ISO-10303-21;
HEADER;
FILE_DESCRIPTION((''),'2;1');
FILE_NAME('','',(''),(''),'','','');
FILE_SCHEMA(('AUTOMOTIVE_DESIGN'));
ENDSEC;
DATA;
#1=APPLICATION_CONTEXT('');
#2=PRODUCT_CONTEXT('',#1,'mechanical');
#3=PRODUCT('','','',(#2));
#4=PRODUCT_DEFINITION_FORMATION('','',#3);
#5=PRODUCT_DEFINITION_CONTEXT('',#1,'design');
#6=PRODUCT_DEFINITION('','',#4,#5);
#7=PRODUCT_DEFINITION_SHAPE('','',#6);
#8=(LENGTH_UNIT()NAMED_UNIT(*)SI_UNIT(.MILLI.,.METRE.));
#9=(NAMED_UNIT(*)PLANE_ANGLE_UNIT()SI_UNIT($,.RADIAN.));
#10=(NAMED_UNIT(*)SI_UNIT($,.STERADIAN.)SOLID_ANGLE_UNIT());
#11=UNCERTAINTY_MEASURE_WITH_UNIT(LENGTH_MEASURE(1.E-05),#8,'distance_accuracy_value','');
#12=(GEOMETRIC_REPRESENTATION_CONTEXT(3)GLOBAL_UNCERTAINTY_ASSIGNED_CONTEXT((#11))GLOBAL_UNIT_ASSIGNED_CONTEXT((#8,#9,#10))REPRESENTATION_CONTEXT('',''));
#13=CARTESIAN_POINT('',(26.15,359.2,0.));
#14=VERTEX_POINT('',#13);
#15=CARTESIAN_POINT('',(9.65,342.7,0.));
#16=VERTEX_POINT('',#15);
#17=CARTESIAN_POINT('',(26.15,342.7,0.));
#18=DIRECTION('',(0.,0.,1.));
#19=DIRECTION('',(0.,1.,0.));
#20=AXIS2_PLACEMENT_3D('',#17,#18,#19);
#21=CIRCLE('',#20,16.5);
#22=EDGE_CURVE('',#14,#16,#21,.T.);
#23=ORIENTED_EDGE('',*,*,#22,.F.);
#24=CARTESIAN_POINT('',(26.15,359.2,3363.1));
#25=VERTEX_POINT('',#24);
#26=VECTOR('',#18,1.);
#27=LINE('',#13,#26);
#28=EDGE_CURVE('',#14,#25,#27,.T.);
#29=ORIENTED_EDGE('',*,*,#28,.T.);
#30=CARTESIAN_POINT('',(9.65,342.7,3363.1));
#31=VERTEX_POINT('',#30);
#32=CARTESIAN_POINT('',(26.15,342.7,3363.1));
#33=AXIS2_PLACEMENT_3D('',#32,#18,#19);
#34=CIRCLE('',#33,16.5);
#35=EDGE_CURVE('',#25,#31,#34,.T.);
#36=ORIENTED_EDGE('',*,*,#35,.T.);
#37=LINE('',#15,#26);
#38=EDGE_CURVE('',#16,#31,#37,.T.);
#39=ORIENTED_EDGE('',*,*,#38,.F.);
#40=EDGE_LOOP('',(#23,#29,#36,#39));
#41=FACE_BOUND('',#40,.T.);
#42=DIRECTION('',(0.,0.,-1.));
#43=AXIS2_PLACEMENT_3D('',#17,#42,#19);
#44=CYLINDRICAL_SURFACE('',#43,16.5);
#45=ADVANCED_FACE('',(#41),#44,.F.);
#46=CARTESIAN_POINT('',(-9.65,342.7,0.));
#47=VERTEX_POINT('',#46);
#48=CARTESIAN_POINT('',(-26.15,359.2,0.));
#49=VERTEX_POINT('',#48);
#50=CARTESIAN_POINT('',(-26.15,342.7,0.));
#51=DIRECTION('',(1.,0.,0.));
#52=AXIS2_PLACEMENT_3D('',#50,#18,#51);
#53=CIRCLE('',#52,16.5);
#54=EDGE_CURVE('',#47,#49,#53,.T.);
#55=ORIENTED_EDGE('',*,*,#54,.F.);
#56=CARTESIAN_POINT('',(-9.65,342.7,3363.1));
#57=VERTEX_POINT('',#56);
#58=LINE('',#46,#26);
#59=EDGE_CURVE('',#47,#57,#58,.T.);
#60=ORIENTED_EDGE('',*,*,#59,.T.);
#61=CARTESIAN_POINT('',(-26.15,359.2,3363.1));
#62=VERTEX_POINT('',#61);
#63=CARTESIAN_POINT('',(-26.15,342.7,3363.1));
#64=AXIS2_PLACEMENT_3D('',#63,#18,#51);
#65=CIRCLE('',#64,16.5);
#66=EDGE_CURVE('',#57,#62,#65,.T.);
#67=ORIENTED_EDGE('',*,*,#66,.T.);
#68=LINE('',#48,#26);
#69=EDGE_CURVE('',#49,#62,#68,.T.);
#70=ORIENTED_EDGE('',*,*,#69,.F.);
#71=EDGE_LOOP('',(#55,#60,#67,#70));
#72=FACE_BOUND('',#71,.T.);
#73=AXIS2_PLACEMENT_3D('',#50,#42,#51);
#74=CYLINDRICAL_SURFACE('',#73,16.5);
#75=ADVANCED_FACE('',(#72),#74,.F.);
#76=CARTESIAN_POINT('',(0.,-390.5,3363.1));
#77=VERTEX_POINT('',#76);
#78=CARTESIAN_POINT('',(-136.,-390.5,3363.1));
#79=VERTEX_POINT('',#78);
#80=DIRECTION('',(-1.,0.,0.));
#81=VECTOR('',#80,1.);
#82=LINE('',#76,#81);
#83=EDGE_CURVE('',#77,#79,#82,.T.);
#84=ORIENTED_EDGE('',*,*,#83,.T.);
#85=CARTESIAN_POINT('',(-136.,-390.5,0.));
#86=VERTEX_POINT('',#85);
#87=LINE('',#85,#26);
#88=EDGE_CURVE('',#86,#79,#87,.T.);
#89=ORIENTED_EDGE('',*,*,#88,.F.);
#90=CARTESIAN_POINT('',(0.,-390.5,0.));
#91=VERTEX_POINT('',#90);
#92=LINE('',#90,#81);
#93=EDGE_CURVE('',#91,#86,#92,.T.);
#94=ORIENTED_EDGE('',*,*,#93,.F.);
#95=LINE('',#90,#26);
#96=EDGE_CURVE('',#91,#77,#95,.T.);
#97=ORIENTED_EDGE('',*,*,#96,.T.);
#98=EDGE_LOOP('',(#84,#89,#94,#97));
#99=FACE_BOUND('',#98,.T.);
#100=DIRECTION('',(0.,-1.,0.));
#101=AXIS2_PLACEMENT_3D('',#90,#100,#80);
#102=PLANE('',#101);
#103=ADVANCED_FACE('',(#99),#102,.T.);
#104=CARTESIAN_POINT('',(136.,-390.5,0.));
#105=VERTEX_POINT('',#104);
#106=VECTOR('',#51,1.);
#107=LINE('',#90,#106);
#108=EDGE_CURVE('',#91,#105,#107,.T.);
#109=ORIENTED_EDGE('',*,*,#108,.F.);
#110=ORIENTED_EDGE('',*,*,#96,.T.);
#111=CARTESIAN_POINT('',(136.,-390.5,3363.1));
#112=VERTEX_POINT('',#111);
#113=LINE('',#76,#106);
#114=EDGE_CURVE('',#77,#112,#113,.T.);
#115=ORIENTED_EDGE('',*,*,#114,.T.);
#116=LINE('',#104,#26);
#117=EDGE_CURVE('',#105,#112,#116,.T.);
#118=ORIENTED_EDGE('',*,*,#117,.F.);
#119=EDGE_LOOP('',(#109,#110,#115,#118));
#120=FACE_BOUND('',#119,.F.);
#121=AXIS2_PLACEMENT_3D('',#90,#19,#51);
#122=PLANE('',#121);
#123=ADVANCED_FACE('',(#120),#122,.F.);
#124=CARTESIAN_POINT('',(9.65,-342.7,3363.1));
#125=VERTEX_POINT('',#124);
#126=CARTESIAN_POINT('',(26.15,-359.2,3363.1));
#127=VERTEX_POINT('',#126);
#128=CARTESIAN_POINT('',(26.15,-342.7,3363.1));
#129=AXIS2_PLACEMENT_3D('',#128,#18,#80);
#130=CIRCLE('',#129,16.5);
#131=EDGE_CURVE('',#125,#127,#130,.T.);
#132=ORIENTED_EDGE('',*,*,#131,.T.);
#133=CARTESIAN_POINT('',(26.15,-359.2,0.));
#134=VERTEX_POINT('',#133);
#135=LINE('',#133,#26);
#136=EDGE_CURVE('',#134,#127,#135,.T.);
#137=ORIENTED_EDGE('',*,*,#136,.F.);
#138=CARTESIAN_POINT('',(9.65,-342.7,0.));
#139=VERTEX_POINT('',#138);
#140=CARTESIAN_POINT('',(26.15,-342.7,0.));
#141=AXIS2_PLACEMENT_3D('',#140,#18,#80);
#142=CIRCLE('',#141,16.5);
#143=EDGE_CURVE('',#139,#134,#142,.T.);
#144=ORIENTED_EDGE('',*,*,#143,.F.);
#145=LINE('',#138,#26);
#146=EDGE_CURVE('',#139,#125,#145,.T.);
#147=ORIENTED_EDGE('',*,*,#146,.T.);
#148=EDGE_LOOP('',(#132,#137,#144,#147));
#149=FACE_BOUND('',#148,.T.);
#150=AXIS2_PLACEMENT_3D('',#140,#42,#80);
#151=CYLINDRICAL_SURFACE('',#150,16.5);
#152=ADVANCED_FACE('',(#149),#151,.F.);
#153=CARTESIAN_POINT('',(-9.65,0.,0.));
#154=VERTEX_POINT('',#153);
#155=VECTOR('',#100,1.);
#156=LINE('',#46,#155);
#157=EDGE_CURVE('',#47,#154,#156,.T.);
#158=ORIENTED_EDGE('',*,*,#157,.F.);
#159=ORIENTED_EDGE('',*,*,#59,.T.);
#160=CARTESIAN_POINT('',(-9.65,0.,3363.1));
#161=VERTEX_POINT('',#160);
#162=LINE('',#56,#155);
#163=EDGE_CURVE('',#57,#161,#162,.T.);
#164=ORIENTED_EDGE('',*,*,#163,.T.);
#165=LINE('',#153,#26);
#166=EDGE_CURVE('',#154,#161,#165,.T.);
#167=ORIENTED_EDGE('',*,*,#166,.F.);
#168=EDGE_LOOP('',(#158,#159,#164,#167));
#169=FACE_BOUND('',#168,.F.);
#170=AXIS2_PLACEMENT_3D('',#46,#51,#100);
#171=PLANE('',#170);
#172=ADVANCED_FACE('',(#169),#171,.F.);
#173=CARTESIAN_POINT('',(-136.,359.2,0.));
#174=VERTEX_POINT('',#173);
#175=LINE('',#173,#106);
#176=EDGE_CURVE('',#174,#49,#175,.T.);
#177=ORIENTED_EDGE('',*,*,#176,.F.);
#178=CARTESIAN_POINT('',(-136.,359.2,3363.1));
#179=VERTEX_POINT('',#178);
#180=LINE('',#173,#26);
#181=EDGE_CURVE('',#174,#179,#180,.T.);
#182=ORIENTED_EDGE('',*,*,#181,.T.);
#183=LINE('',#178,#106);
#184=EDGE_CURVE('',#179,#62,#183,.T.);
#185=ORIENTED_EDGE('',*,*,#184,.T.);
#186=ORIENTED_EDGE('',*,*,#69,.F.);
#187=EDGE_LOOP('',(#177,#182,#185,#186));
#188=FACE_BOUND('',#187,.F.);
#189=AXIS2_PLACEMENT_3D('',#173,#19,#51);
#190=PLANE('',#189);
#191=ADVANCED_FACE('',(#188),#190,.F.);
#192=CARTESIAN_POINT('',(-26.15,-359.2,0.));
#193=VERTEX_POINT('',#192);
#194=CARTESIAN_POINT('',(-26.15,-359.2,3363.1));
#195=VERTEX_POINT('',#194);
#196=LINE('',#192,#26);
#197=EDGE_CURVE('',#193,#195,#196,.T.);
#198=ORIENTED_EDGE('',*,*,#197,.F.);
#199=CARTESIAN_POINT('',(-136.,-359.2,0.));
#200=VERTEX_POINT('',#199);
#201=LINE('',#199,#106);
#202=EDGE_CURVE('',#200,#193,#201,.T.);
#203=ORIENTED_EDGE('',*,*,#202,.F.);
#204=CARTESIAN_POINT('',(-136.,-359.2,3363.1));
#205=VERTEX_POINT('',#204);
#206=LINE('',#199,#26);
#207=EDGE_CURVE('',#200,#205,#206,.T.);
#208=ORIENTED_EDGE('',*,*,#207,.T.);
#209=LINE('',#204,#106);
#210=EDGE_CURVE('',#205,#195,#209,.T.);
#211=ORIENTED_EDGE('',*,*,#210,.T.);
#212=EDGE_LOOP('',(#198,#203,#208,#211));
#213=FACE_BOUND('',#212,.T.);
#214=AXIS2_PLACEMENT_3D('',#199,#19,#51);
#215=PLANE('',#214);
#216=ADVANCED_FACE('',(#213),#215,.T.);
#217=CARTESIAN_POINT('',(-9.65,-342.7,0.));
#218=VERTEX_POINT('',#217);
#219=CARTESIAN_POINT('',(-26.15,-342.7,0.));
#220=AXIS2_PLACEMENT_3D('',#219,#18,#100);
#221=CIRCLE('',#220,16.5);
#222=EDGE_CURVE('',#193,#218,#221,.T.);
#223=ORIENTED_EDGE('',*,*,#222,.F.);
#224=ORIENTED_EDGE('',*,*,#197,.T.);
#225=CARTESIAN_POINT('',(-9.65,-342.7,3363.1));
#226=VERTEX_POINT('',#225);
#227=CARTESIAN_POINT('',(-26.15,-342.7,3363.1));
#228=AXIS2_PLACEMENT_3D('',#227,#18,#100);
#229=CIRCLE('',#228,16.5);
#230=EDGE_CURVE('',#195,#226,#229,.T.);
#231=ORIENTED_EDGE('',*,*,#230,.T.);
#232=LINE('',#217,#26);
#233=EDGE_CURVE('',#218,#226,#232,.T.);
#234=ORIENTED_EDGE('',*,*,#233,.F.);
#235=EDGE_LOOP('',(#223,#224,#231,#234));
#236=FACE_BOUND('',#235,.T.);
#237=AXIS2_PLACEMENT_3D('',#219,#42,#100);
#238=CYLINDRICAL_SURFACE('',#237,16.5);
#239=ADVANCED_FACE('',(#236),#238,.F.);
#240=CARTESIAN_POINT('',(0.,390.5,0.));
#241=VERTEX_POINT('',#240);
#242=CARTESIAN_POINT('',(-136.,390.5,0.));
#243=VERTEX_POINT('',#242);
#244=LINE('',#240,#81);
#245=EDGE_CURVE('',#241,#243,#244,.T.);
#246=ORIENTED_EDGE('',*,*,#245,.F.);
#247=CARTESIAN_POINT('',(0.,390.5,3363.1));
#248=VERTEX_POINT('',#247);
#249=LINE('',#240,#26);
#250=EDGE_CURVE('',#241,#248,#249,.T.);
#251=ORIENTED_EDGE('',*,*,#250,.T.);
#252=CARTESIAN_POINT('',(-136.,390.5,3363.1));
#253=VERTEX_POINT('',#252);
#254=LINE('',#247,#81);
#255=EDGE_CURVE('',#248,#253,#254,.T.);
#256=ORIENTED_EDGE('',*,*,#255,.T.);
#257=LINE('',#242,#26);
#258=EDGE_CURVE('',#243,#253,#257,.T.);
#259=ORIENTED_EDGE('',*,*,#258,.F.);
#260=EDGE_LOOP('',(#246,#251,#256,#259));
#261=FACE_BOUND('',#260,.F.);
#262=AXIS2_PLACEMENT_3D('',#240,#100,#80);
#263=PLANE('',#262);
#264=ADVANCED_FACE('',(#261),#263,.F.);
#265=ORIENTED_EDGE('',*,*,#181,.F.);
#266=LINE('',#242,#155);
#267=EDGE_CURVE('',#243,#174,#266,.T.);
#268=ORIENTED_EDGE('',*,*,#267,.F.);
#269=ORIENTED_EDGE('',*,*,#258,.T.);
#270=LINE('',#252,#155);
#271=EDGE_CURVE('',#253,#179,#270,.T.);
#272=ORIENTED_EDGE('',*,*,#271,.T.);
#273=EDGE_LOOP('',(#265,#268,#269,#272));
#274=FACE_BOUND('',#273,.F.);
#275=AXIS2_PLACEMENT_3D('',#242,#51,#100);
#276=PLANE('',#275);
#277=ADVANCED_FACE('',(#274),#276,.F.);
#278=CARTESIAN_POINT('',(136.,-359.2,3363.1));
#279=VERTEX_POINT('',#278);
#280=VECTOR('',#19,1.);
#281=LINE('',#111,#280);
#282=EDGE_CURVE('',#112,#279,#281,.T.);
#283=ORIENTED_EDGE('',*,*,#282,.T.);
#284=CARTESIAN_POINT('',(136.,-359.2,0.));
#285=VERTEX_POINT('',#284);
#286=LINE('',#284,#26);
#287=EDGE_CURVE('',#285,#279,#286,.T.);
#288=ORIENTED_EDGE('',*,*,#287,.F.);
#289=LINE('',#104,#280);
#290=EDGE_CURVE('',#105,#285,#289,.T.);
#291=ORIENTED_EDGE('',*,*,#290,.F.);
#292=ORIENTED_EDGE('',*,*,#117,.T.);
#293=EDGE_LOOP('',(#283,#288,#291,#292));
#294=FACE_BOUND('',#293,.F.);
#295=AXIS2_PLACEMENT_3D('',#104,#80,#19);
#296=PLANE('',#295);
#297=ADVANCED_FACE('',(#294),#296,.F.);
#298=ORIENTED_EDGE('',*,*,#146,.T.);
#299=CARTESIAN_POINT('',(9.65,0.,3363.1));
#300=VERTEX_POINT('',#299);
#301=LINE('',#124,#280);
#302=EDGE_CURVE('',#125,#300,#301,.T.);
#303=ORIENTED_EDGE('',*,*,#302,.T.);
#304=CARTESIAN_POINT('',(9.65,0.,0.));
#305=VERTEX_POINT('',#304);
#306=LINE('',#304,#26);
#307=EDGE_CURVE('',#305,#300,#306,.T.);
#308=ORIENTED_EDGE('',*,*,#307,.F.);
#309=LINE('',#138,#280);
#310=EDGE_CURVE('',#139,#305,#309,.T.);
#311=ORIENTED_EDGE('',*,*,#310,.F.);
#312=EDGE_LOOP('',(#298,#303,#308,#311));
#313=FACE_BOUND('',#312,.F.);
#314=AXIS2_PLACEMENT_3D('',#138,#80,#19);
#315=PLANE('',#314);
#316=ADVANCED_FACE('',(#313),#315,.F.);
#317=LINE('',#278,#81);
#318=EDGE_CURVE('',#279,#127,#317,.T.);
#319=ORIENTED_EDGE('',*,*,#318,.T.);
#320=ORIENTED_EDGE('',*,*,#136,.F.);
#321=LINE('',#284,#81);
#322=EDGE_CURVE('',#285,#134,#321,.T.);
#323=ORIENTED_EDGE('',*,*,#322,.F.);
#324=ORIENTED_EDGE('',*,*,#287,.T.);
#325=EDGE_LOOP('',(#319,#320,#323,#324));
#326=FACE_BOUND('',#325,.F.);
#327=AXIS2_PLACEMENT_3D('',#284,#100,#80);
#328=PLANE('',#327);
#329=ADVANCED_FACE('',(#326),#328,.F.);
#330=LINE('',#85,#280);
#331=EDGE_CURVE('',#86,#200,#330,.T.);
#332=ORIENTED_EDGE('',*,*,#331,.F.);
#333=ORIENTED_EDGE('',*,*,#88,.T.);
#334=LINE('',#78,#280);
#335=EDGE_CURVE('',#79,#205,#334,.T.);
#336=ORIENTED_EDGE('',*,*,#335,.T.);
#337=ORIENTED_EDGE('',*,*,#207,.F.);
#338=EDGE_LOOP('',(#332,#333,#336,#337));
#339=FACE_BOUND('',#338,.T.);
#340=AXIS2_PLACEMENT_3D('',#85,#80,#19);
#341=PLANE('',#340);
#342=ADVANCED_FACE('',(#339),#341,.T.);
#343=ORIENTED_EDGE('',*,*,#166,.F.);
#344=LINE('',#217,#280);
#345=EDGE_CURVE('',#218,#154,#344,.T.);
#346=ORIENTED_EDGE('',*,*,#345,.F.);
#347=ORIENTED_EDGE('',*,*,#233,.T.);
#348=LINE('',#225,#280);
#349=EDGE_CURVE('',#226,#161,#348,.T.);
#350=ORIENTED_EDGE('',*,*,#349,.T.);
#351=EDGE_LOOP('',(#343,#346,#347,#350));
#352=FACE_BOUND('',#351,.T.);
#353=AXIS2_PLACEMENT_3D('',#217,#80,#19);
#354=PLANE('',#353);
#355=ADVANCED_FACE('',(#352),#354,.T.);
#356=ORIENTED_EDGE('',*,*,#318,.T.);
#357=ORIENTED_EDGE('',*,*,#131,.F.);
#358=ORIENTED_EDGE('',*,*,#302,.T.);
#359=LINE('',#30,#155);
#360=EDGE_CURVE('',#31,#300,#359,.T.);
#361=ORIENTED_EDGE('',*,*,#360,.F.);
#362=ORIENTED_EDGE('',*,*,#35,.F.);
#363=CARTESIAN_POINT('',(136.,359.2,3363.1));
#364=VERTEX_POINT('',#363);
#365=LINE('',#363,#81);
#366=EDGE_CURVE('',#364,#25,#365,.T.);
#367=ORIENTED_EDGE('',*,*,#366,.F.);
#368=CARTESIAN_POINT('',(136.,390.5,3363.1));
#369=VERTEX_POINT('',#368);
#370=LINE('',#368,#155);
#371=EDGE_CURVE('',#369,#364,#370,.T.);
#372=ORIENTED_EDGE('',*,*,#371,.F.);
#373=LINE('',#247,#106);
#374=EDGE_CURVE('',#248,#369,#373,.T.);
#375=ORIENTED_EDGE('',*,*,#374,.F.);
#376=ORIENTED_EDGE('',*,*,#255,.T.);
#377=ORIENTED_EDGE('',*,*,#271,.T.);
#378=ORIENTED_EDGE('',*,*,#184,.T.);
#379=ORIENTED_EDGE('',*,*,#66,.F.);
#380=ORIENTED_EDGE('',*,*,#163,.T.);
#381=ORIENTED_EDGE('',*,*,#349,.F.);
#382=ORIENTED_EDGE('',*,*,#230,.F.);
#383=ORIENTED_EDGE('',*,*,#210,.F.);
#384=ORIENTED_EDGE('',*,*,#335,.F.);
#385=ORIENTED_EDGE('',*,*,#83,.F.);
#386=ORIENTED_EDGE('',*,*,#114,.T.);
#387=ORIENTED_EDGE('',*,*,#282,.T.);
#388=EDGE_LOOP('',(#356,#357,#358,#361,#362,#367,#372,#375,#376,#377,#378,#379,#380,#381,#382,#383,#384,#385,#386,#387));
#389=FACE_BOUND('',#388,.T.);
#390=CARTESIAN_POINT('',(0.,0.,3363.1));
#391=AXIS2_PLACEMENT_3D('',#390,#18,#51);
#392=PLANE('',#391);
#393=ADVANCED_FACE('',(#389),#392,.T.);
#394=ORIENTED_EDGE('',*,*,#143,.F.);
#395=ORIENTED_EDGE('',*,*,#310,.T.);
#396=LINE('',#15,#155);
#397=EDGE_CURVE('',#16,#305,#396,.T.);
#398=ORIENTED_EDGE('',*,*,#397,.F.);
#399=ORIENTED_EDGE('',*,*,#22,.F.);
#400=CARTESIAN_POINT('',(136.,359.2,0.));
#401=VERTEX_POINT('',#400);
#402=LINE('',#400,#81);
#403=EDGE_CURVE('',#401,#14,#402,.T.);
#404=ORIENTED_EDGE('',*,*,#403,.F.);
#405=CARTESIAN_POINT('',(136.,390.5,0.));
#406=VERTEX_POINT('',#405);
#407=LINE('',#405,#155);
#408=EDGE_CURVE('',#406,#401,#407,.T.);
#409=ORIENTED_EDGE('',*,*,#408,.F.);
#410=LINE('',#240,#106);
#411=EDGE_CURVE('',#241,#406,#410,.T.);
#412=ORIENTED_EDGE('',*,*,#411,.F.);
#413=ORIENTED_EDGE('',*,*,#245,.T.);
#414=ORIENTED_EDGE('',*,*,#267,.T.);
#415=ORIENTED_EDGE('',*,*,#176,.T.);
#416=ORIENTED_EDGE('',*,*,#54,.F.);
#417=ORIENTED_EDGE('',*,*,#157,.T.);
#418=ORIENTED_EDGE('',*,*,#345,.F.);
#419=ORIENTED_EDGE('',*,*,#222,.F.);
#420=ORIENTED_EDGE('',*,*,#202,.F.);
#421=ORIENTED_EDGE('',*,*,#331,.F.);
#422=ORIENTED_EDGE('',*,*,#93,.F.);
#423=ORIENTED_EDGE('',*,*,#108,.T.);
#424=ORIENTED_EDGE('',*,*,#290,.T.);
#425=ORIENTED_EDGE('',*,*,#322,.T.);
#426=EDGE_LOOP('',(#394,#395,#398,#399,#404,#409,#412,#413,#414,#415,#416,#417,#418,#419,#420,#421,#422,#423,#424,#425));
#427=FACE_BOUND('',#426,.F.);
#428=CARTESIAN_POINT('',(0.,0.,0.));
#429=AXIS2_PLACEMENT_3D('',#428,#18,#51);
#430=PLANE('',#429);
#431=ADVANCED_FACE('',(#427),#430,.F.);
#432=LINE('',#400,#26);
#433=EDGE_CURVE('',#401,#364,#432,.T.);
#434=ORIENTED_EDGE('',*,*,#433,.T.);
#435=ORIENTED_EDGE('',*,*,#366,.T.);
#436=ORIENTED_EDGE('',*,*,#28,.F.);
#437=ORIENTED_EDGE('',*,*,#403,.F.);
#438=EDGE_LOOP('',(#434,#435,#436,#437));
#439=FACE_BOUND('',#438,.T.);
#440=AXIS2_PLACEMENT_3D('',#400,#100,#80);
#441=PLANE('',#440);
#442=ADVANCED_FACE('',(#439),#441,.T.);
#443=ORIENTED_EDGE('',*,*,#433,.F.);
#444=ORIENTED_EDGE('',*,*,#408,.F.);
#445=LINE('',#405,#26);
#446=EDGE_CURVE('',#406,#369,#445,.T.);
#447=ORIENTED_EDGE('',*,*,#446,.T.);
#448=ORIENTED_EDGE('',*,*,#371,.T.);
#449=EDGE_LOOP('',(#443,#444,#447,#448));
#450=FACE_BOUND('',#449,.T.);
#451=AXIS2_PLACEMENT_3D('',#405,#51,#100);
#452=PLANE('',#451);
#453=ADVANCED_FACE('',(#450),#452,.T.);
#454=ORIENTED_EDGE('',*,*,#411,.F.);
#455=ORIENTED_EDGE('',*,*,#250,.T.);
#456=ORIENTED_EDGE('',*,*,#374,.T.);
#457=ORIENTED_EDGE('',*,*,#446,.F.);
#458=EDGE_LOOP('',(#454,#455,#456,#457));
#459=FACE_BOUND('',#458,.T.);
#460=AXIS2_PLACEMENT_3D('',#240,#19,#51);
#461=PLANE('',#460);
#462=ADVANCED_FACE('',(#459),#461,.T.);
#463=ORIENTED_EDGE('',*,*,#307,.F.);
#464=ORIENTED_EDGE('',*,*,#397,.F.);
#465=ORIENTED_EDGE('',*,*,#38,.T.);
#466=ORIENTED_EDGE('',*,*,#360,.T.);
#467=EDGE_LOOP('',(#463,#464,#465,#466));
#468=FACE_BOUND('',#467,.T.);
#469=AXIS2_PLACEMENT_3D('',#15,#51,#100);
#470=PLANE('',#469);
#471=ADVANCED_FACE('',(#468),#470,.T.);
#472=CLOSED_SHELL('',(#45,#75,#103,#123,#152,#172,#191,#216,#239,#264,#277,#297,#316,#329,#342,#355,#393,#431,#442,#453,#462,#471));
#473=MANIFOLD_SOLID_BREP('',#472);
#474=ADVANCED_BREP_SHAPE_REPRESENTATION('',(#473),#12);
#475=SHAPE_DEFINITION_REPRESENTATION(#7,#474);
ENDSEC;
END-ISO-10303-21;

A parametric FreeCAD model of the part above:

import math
import FreeCAD as App
import Part
import Sketcher

V = App.Vector
Q = App.Units.Quantity

doc = App.newDocument("Part")
body = doc.addObject("PartDesign::Body", "Body")

sketch1 = body.newObject("Sketcher::SketchObject", "Sketch")
sketch1.AttachmentSupport = (doc.getObject("XY_Plane"), [""])
sketch1.MapMode = "FlatFace"
sketch1.addGeometry([
    Part.LineSegment(V(-136, -359, 0), V(-136, -390, 0)),
    Part.LineSegment(V(-136, -390, 0), V(136, -390, 0)),
    Part.LineSegment(V(136, -390, 0), V(136, -359, 0)),
    Part.LineSegment(V(136, -359, 0), V(26, -359, 0)),
    Part.ArcOfCircle(Part.Circle(V(26, -343, 0), V(0, 0, 1), 16), math.radians(180), math.radians(270)),
    Part.LineSegment(V(10, -343, 0), V(10, 343, 0)),
    Part.ArcOfCircle(Part.Circle(V(26, 343, 0), V(0, 0, 1), 16), math.radians(90), math.radians(180)),
    Part.LineSegment(V(26, 359, 0), V(136, 359, 0)),
    Part.LineSegment(V(136, 359, 0), V(136, 390, 0)),
    Part.LineSegment(V(136, 390, 0), V(-136, 390, 0)),
    Part.LineSegment(V(-136, 390, 0), V(-136, 359, 0)),
    Part.LineSegment(V(-136, 359, 0), V(-26, 359, 0)),
    Part.ArcOfCircle(Part.Circle(V(-26, 343, 0), V(0, 0, 1), 16), math.radians(0), math.radians(90)),
    Part.LineSegment(V(-10, 343, 0), V(-10, -343, 0)),
    Part.ArcOfCircle(Part.Circle(V(-26, -343, 0), V(0, 0, 1), 16), math.radians(-90), math.radians(0)),
    Part.LineSegment(V(-26, -359, 0), V(-136, -359, 0)),
], False)
sketch1.addConstraint([
    Sketcher.Constraint("Coincident", 0, 2, 1, 1),
    Sketcher.Constraint("Coincident", 1, 2, 2, 1),
    Sketcher.Constraint("Coincident", 2, 2, 3, 1),
    Sketcher.Constraint("Tangent", 3, 2, 4, 2),
    Sketcher.Constraint("Tangent", 4, 1, 5, 1),
    Sketcher.Constraint("Tangent", 5, 2, 6, 2),
    Sketcher.Constraint("Tangent", 6, 1, 7, 1),
    Sketcher.Constraint("Coincident", 7, 2, 8, 1),
    Sketcher.Constraint("Coincident", 8, 2, 9, 1),
    Sketcher.Constraint("Coincident", 9, 2, 10, 1),
    Sketcher.Constraint("Coincident", 10, 2, 11, 1),
    Sketcher.Constraint("Tangent", 11, 2, 12, 2),
    Sketcher.Constraint("Tangent", 12, 1, 13, 1),
    Sketcher.Constraint("Tangent", 13, 2, 14, 2),
    Sketcher.Constraint("Tangent", 14, 1, 15, 1),
    Sketcher.Constraint("Coincident", 15, 2, 0, 1),
    Sketcher.Constraint("Vertical", 0),
    Sketcher.Constraint("Horizontal", 1),
    Sketcher.Constraint("Vertical", 2),
    Sketcher.Constraint("Horizontal", 3),
    Sketcher.Constraint("Vertical", 5),
    Sketcher.Constraint("Horizontal", 7),
    Sketcher.Constraint("Vertical", 8),
    Sketcher.Constraint("Horizontal", 9),
    Sketcher.Constraint("Vertical", 10),
    Sketcher.Constraint("Horizontal", 11),
    Sketcher.Constraint("Vertical", 13),
    Sketcher.Constraint("Horizontal", 15),
    Sketcher.Constraint("Equal", 4, 6),
    Sketcher.Constraint("Equal", 6, 12),
    Sketcher.Constraint("Equal", 12, 14),
    Sketcher.Constraint("Symmetric", 4, 3, 12, 3, -1, 1),
    Sketcher.Constraint("Symmetric", 0, 2, 8, 2, -1, 1),
    Sketcher.Constraint("Symmetric", 7, 2, 10, 2, -2),
    Sketcher.Constraint("Symmetric", 2, 2, 15, 2, -2),
    Sketcher.Constraint("Radius", 4, Q("16.5 mm")),
    Sketcher.Constraint("DistanceY", 0, 2, 0, 1, Q("31.3 mm")),
    Sketcher.Constraint("DistanceX", 0, 2, -1, 1, Q("136 mm")),
    Sketcher.Constraint("DistanceY", 0, 2, -1, 1, Q("390.5 mm")),
    Sketcher.Constraint("DistanceX", -1, 1, 4, 1, Q("9.65 mm")),
])
pad1 = body.newObject("PartDesign::Pad", "Pad")
pad1.Profile = sketch1
pad1.Length = 3363.1

doc.recompute()
